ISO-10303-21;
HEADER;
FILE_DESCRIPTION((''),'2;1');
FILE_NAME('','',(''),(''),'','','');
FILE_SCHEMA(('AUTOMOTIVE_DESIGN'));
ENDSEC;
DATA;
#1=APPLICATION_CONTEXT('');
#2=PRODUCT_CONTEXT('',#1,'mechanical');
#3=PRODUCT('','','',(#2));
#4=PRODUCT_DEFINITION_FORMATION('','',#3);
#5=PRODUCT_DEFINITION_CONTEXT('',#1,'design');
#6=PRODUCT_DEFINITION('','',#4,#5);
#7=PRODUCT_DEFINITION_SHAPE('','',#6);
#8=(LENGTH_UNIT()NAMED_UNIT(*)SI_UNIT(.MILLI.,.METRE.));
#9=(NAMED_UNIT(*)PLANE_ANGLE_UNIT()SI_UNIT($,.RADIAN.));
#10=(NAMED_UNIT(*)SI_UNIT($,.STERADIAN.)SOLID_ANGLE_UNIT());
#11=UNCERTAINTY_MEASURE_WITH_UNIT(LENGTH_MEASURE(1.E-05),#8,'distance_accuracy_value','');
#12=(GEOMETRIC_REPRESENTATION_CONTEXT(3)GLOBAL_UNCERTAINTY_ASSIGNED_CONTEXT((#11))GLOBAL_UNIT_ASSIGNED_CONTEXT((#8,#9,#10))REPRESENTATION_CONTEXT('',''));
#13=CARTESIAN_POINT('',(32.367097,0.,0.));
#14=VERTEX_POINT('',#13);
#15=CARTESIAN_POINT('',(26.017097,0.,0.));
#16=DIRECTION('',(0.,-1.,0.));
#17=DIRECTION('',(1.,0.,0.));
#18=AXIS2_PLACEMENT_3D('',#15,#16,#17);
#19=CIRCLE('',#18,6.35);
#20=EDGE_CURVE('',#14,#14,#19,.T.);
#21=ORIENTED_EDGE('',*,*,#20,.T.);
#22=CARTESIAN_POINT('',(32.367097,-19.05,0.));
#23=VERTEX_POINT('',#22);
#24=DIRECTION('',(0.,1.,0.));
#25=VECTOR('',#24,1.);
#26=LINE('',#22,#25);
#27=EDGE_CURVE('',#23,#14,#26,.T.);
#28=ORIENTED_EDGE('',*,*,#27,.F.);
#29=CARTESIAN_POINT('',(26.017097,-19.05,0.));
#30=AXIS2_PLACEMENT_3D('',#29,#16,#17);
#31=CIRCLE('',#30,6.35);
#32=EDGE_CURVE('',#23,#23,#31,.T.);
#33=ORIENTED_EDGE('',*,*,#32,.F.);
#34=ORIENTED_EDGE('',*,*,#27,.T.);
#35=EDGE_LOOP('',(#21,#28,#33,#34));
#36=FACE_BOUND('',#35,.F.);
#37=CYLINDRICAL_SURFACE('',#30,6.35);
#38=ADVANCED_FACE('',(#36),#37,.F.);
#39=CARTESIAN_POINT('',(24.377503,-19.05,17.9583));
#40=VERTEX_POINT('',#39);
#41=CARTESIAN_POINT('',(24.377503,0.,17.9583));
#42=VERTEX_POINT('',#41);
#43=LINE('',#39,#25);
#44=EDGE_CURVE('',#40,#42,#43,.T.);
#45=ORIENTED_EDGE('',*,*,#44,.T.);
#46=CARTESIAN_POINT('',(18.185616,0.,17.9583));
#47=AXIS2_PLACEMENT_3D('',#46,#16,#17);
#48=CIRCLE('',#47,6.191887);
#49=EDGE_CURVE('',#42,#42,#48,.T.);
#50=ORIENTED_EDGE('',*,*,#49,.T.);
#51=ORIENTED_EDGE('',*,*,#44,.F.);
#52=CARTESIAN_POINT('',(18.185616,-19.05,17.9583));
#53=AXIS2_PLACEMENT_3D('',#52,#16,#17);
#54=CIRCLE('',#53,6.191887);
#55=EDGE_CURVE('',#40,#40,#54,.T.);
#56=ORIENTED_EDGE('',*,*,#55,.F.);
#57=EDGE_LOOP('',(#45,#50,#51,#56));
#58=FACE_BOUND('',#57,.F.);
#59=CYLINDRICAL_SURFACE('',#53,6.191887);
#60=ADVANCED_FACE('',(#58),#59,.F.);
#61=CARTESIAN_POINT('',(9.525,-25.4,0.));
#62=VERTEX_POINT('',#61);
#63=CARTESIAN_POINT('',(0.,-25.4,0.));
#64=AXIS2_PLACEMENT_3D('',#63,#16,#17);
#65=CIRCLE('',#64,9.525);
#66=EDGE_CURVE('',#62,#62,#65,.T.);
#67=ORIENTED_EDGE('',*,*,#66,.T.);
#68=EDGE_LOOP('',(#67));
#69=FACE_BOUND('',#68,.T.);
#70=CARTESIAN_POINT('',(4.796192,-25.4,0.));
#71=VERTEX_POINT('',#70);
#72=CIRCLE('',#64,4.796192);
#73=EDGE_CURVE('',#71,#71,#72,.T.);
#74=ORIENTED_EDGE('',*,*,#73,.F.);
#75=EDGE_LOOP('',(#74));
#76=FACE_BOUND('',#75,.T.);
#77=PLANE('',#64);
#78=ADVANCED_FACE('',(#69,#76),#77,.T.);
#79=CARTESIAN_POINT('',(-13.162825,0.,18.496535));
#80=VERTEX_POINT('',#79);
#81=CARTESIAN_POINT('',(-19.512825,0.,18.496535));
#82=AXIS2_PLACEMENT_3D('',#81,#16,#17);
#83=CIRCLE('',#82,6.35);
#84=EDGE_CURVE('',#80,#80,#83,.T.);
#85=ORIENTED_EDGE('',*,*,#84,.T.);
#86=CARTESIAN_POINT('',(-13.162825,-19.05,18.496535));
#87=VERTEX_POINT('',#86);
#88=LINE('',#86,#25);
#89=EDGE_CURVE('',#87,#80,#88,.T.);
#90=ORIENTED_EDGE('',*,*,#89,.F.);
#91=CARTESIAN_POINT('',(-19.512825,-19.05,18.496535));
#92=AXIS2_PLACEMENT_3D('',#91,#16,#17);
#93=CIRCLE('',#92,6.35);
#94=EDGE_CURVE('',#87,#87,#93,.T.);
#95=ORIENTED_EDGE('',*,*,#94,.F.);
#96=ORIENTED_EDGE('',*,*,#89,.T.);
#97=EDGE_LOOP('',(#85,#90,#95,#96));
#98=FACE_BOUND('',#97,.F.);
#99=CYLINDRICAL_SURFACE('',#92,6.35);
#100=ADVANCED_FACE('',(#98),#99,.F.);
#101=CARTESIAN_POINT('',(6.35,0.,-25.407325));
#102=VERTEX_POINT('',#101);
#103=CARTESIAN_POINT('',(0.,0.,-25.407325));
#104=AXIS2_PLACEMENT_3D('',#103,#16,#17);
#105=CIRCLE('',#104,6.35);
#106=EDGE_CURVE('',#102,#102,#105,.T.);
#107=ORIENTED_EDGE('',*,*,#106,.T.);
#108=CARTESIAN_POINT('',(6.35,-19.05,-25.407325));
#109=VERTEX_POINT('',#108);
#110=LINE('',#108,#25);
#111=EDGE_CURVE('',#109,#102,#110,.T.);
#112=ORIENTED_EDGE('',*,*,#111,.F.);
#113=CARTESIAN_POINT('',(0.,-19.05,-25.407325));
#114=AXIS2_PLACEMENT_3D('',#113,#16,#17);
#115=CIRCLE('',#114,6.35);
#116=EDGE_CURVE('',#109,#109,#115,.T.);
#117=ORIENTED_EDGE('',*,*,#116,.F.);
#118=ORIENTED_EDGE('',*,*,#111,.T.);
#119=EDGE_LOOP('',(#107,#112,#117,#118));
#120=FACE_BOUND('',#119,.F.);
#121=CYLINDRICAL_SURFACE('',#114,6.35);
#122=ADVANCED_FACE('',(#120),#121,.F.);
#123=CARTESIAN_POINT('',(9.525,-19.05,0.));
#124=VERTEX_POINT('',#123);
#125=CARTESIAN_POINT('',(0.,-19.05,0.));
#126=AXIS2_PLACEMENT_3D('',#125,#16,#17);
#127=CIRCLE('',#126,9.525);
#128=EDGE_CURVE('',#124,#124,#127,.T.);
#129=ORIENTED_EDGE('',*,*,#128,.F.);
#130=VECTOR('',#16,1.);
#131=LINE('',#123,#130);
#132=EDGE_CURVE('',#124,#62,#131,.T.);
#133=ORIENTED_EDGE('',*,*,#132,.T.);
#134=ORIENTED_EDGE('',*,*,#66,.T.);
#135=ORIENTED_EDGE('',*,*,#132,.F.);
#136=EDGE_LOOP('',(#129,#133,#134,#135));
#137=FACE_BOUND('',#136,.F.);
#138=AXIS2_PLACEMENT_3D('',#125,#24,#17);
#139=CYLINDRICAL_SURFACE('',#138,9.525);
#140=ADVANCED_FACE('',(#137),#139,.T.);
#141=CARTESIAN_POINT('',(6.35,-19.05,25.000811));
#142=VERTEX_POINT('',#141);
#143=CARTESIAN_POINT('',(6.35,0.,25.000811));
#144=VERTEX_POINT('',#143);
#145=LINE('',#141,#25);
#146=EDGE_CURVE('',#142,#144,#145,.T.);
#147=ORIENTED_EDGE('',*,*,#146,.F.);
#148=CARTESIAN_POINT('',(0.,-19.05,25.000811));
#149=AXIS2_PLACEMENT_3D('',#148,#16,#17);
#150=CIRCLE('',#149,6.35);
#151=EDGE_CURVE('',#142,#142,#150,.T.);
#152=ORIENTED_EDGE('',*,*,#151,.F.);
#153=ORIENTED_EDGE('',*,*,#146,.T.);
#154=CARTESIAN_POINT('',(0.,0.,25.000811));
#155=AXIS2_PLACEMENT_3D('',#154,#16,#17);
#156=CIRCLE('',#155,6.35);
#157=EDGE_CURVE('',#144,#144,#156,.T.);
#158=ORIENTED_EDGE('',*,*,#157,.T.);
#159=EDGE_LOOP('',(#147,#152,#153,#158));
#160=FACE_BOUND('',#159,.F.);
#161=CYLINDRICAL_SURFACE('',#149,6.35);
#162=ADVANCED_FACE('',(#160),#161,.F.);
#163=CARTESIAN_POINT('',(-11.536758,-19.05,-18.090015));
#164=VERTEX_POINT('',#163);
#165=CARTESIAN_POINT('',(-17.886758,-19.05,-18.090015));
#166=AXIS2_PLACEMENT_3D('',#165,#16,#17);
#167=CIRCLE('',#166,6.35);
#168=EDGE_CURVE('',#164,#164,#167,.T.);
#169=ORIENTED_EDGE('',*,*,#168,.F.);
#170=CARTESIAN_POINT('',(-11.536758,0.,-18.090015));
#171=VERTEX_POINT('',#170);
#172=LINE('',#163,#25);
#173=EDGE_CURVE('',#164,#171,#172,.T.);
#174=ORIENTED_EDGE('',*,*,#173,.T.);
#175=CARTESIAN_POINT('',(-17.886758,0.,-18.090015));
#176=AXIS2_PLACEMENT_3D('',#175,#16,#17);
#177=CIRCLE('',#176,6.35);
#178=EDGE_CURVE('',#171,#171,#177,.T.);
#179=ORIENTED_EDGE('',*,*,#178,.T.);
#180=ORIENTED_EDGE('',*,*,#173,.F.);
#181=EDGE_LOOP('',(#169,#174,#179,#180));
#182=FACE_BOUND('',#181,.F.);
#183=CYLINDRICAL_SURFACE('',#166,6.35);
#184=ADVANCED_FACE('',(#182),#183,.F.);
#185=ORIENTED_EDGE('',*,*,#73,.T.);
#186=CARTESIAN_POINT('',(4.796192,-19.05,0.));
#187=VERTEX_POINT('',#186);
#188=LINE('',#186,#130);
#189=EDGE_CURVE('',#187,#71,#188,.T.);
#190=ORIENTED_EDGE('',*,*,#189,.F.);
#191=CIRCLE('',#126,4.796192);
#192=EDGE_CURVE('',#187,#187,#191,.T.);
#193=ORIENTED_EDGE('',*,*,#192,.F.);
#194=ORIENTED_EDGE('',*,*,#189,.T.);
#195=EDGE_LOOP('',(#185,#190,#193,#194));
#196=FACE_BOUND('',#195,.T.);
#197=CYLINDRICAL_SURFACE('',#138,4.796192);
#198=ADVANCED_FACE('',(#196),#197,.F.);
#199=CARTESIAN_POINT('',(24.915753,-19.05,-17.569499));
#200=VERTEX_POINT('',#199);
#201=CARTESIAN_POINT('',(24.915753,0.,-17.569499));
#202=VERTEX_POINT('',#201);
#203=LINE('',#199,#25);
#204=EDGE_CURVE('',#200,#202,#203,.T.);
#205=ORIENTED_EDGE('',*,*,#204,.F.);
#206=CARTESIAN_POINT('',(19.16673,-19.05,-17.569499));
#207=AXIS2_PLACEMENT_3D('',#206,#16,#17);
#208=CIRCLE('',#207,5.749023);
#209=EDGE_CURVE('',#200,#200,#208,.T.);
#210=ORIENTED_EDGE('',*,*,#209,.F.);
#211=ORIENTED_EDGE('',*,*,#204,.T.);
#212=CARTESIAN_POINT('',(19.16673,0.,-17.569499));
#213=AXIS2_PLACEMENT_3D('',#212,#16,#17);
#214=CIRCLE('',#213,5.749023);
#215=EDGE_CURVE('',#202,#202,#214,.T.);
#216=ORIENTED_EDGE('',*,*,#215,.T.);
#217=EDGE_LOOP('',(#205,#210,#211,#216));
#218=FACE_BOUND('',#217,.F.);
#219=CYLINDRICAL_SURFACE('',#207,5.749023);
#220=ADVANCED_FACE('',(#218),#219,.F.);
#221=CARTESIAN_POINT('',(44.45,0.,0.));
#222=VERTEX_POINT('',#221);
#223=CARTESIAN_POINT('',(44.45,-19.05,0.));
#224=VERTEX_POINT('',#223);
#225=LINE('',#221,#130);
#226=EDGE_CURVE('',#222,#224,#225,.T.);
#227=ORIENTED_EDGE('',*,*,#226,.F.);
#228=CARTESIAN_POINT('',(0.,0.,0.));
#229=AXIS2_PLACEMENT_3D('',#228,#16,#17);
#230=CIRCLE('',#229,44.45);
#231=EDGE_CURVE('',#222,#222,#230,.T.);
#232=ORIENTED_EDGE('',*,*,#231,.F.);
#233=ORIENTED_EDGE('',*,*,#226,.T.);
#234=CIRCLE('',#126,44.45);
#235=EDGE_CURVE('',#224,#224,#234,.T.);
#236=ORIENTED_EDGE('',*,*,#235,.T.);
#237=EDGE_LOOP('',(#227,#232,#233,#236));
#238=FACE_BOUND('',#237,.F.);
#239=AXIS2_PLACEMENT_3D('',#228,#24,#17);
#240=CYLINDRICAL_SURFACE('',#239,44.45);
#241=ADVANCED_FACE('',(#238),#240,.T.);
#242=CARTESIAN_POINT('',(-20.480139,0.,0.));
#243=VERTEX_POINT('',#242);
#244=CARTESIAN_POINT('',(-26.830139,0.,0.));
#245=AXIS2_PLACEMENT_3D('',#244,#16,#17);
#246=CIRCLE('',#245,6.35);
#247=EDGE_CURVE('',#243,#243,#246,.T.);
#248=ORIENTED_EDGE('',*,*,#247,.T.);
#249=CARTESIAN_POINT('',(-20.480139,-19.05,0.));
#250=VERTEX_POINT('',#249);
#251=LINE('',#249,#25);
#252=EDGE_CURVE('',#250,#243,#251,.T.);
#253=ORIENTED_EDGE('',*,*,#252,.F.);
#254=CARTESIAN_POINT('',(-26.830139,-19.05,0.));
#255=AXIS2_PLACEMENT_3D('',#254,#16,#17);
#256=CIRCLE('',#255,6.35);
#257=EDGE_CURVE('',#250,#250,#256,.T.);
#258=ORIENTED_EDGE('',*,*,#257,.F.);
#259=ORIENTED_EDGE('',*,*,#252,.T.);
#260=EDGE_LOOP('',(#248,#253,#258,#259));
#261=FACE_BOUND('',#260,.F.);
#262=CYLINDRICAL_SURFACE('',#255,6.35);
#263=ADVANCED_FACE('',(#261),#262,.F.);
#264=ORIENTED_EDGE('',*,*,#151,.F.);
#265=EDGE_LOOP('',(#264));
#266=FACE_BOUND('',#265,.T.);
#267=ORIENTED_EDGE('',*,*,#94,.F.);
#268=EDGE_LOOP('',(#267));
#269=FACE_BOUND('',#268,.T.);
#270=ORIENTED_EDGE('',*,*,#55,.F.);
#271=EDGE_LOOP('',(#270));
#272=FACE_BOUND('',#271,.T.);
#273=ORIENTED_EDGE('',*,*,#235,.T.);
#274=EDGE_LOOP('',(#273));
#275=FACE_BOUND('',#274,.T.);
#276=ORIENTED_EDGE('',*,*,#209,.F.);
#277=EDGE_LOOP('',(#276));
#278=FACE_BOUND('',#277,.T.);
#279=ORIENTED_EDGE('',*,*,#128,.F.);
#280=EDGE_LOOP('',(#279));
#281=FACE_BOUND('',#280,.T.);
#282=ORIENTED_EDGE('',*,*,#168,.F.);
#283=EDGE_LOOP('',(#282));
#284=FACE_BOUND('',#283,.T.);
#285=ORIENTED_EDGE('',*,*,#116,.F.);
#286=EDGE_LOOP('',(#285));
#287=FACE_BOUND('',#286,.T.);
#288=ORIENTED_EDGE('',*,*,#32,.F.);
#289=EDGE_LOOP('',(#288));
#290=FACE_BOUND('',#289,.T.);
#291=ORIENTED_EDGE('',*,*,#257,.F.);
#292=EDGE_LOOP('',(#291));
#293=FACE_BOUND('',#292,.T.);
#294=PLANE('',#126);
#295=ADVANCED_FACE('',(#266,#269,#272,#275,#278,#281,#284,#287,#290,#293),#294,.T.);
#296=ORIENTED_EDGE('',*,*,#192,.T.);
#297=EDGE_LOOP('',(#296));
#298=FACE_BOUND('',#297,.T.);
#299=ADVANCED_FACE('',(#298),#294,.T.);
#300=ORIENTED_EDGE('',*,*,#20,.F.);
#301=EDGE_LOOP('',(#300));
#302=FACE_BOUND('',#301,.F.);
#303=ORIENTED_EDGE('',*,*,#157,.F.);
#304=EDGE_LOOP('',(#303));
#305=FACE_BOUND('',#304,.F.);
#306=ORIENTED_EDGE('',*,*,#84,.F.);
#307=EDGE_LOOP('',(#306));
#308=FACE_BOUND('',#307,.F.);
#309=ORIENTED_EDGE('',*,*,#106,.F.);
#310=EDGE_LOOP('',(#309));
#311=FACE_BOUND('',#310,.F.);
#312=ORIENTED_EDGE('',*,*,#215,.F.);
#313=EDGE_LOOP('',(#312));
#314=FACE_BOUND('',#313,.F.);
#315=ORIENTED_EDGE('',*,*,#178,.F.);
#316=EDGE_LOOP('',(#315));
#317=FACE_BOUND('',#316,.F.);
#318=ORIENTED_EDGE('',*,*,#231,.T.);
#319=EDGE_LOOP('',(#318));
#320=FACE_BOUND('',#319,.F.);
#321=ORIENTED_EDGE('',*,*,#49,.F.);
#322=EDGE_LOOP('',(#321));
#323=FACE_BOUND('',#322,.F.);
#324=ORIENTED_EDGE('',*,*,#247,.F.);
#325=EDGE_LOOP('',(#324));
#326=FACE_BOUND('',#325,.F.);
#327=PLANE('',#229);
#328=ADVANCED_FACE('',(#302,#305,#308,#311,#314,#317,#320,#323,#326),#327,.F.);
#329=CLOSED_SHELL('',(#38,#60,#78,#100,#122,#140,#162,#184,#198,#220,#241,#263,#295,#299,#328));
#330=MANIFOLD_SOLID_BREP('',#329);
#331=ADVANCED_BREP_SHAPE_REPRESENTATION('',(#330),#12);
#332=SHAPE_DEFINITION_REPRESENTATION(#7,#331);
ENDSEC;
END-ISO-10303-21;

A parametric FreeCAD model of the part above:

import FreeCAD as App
import Part
import Sketcher
from FreeCAD import Vector
Q = App.Units.Quantity

doc = App.newDocument("Part")
params = doc.addObject("Spreadsheet::Sheet", "Params")
for row, (alias, value) in enumerate([
    ("sketch1_diameter", "3.5 in"),
    ("pad1_length", "0.75 in"),
    ("sketch2_diameter", "0.5 in"),
    ("pocket1_length", "1 in"),
    ("sketch3_diameter", "0.75 in"),
    ("pad2_length", "0.25 in"),
], start=1):
    params.set(f"A{row}", alias)
    params.set(f"B{row}", "=" + value)
    params.setAlias(f"B{row}", alias)

body = doc.addObject("PartDesign::Body", "Body")

# Sketch on XZ plane
sketch1 = body.newObject("Sketcher::SketchObject", "Sketch")
sketch1.AttachmentSupport = (doc.getObject("XZ_Plane"), [""])
sketch1.MapMode = "FlatFace"
sketch1.addGeometry(Part.Circle(Vector(0, 0, 0), Vector(0, 0, 1), 44), False)
sketch1.addConstraint(Sketcher.Constraint("Coincident", 0, 3, -1, 1))
sketch1.addConstraint(Sketcher.Constraint("Diameter", 0, Q("3.5 in")))
sketch1.setExpression("Constraints[1]", "Params.sketch1_diameter")
pad1 = body.newObject("PartDesign::Pad", "Pad")
pad1.Profile = sketch1
pad1.setExpression("Length", "Params.pad1_length")

# Sketch on XZ plane
sketch2 = body.newObject("Sketcher::SketchObject", "Sketch001")
sketch2.AttachmentSupport = (doc.getObject("XZ_Plane"), [""])
sketch2.MapMode = "FlatFace"
sketch2.AttachmentOffset = App.Placement(Vector(0, 0, 0.75 * 25.4), App.Rotation())
sketch2.addGeometry(Part.Circle(Vector(0, 25, 0), Vector(0, 0, 1), 6), False)
sketch2.addGeometry(Part.Circle(Vector(0, -25, 0), Vector(0, 0, 1), 6), False)
sketch2.addGeometry(Part.Circle(Vector(26, 0, 0), Vector(0, 0, 1), 6), False)
sketch2.addGeometry(Part.Circle(Vector(-27, 0, 0), Vector(0, 0, 1), 6), False)
sketch2.addGeometry(Part.Circle(Vector(18, 18, 0), Vector(0, 0, 1), 6), False)
sketch2.addGeometry(Part.Circle(Vector(19, -18, 0), Vector(0, 0, 1), 6), False)
sketch2.addGeometry(Part.Circle(Vector(-18, -18, 0), Vector(0, 0, 1), 6), False)
sketch2.addGeometry(Part.Circle(Vector(-20, 18, 0), Vector(0, 0, 1), 6), False)
sketch2.addConstraint(Sketcher.Constraint("Equal", 0, 1))
sketch2.addConstraint(Sketcher.Constraint("Equal", 1, 2))
sketch2.addConstraint(Sketcher.Constraint("Equal", 2, 3))
sketch2.addConstraint(Sketcher.Constraint("Equal", 3, 6))
sketch2.addConstraint(Sketcher.Constraint("Equal", 6, 7))
sketch2.addConstraint(Sketcher.Constraint("PointOnObject", 0, 3, -2))
sketch2.addConstraint(Sketcher.Constraint("PointOnObject", 1, 3, -2))
sketch2.addConstraint(Sketcher.Constraint("PointOnObject", 2, 3, -1))
sketch2.addConstraint(Sketcher.Constraint("PointOnObject", 3, 3, -1))
sketch2.addConstraint(Sketcher.Constraint("Diameter", 0, Q("0.5 in")))
sketch2.addConstraint(Sketcher.Constraint("Diameter", 4, 12.383774))
sketch2.addConstraint(Sketcher.Constraint("Diameter", 5, 11.498046))
sketch2.addConstraint(Sketcher.Constraint("DistanceX", 3, 3, 2, 3, Q("2.0805998 in")))
sketch2.addConstraint(Sketcher.Constraint("DistanceY", -1, 1, 4, 3, 17.9583))
sketch2.addConstraint(Sketcher.Constraint("DistanceY", 5, 3, -1, 1, 17.569499))
sketch2.addConstraint(Sketcher.Constraint("DistanceY", -1, 1, 0, 3, 25.000811))
sketch2.addConstraint(Sketcher.Constraint("DistanceX", 3, 3, -1, 1, 26.830139))
sketch2.addConstraint(Sketcher.Constraint("DistanceX", -1, 1, 5, 3, 19.16673))
sketch2.addConstraint(Sketcher.Constraint("DistanceX", 6, 3, -1, 1, 17.886758))
sketch2.addConstraint(Sketcher.Constraint("DistanceX", 4, 3, 2, 3, 7.831481))
sketch2.addConstraint(Sketcher.Constraint("DistanceY", 1, 3, 6, 3, 7.31731))
sketch2.addConstraint(Sketcher.Constraint("DistanceY", 6, 3, 7, 3, 36.58655))
sketch2.addConstraint(Sketcher.Constraint("DistanceX", 7, 3, 4, 3, 37.698441))
sketch2.addConstraint(Sketcher.Constraint("DistanceY", 1, 3, -1, 1, 25.407325))
sketch2.setExpression("Constraints[9]", "Params.sketch2_diameter")
pocket1 = body.newObject("PartDesign::Pocket", "Pocket")
pocket1.Profile = sketch2
pocket1.setExpression("Length", "Params.pocket1_length")

# Sketch on XZ plane
sketch3 = body.newObject("Sketcher::SketchObject", "Sketch002")
sketch3.AttachmentSupport = (doc.getObject("XZ_Plane"), [""])
sketch3.MapMode = "FlatFace"
sketch3.AttachmentOffset = App.Placement(Vector(0, 0, 0.75 * 25.4), App.Rotation())
sketch3.addGeometry(Part.Circle(Vector(0, 0, 0), Vector(0, 0, 1), 9.5), False)
sketch3.addGeometry(Part.Circle(Vector(0, 0, 0), Vector(0, 0, 1), 4.8), False)
sketch3.addConstraint(Sketcher.Constraint("Coincident", 0, 3, -1, 1))
sketch3.addConstraint(Sketcher.Constraint("Coincident", 1, 3, -1, 1))
sketch3.addConstraint(Sketcher.Constraint("Diameter", 0, Q("0.75 in")))
sketch3.addConstraint(Sketcher.Constraint("Diameter", 1, 9.592384))
sketch3.setExpression("Constraints[2]", "Params.sketch3_diameter")
pad2 = body.newObject("PartDesign::Pad", "Pad001")
pad2.Profile = sketch3
pad2.setExpression("Length", "Params.pad2_length")

doc.recompute()
